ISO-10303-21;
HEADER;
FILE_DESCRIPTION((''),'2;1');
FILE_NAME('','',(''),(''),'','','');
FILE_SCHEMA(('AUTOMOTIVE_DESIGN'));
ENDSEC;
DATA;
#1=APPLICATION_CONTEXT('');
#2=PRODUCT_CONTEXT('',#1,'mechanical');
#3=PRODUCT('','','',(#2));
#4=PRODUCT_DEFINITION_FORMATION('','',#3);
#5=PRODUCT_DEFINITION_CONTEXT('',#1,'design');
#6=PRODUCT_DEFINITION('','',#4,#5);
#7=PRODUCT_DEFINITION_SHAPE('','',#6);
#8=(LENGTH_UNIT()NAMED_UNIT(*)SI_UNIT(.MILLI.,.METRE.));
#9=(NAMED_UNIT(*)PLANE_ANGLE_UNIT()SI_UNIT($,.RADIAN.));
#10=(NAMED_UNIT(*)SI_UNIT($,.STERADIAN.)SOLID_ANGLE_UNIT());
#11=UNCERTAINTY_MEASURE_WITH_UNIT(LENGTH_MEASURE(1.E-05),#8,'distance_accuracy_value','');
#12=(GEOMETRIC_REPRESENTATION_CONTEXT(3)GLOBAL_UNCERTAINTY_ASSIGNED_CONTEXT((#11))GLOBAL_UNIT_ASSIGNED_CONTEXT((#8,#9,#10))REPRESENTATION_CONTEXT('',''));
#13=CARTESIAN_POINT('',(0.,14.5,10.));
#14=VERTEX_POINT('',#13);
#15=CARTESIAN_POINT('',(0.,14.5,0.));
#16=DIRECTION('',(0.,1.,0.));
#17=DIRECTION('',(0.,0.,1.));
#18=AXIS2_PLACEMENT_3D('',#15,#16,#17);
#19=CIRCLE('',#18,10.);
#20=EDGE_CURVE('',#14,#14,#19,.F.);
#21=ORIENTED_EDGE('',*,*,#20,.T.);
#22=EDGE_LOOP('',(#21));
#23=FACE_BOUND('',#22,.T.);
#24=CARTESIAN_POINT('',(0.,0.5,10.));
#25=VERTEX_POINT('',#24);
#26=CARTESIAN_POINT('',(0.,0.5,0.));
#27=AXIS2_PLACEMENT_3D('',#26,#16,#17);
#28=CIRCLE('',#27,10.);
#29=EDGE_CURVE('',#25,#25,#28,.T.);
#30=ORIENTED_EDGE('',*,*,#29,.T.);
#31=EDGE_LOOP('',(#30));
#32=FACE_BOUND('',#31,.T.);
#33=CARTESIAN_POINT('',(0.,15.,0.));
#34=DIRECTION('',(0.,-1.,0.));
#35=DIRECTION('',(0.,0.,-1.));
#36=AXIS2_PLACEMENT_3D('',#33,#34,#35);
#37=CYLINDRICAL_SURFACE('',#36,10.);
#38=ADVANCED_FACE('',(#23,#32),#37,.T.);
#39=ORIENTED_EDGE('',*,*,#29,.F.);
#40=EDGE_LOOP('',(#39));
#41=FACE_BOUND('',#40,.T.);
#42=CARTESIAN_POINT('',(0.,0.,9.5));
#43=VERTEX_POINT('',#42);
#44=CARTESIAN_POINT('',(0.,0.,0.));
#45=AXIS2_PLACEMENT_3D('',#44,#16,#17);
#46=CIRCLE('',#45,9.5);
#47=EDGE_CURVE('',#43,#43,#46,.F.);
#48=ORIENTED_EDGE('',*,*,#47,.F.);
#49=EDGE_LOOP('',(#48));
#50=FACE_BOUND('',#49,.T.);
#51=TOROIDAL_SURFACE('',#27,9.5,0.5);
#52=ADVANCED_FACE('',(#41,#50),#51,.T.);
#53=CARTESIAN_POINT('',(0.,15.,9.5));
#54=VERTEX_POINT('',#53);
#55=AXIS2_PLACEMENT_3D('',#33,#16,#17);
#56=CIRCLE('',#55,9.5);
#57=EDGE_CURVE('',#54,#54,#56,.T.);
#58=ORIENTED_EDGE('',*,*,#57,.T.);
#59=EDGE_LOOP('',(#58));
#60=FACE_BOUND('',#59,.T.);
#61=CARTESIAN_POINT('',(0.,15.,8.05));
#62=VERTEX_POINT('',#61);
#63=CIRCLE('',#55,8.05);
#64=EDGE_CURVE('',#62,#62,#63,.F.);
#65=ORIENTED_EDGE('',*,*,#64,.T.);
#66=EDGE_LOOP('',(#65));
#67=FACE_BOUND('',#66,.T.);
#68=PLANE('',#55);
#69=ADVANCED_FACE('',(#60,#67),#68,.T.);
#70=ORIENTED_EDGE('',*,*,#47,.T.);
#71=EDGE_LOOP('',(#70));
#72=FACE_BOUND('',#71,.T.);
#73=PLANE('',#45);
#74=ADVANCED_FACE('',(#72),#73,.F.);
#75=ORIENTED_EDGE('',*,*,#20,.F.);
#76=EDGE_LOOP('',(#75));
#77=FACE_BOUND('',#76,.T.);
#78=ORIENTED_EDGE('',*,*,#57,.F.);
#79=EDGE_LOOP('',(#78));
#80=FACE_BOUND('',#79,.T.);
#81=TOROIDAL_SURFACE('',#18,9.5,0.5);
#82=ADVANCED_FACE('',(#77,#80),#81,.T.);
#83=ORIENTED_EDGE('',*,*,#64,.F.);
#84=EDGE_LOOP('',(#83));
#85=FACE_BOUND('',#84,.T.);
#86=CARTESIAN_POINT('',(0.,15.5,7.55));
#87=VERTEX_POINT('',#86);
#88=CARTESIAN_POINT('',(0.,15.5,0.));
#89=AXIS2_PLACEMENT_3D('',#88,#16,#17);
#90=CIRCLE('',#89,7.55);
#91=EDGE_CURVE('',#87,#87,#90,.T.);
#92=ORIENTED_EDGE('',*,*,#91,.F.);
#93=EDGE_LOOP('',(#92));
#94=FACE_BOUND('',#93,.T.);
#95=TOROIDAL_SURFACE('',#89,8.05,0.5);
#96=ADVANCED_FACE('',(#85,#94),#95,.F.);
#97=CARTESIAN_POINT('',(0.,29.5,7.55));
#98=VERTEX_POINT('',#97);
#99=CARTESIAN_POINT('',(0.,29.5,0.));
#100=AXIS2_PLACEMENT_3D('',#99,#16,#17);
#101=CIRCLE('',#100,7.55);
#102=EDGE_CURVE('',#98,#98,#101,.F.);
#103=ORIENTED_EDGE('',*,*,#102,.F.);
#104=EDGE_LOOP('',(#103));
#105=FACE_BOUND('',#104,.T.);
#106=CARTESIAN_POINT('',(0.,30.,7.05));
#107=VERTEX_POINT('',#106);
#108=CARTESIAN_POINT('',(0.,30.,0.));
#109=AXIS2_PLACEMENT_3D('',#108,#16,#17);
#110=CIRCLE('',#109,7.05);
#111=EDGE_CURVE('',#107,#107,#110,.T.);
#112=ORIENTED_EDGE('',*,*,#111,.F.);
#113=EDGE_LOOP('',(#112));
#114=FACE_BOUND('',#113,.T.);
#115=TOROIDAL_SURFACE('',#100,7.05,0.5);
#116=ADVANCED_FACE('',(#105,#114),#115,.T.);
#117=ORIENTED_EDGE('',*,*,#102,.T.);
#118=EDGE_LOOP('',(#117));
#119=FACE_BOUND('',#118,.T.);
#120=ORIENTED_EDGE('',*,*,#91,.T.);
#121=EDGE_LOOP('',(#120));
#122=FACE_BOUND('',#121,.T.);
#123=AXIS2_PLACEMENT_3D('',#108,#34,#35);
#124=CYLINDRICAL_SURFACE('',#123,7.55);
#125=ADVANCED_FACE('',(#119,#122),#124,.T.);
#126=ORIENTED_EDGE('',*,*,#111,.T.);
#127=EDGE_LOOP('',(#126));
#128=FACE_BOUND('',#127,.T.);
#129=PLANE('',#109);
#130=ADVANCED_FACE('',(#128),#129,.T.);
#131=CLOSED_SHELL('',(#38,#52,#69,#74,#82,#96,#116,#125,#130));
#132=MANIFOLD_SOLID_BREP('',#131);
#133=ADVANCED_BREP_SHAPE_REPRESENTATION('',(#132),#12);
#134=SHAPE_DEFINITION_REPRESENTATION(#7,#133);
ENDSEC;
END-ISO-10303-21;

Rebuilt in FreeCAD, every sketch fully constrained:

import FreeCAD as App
import Part
import Sketcher
from FreeCAD import Vector


def edges_at(feature, points):
    """Names of the edges that pass closest to the given points."""
    edges = feature.Shape.Edges
    near = lambda p: min(range(len(edges)), key=lambda i: edges[i].distToShape(Part.Vertex(*p))[0])
    return sorted({f"Edge{near(p) + 1}" for p in points})

doc = App.newDocument("Part")
body = doc.addObject("PartDesign::Body", "Body")

# Sketch on XZ plane
sketch1 = body.newObject("Sketcher::SketchObject", "Sketch")
sketch1.AttachmentSupport = (doc.getObject("XZ_Plane"), [""])
sketch1.MapMode = "FlatFace"
sketch1.addGeometry(Part.Circle(Vector(0, 0, 0), Vector(0, 0, 1), 10), False)
sketch1.addConstraint([
    Sketcher.Constraint("Coincident", 0, 3, -1, 1),
    Sketcher.Constraint("Diameter", 0, 20.0),
])
pad1 = body.newObject("PartDesign::Pad", "Pad")
pad1.Profile = sketch1
pad1.Length = 15
pad1.Reversed = True

# Sketch on XZ plane
sketch2 = body.newObject("Sketcher::SketchObject", "Sketch001")
sketch2.AttachmentSupport = (doc.getObject("XZ_Plane"), [""])
sketch2.MapMode = "FlatFace"
sketch2.AttachmentOffset = App.Placement(Vector(0, 0, -15), App.Rotation())
sketch2.addGeometry(Part.Circle(Vector(0, 0, 0), Vector(0, 0, 1), 8), False)
sketch2.addConstraint([
    Sketcher.Constraint("Coincident", 0, 3, -1, 1),
    Sketcher.Constraint("Diameter", 0, 15.1),
])
pad2 = body.newObject("PartDesign::Pad", "Pad001")
pad2.Profile = sketch2
pad2.Length = 15
pad2.Reversed = True
doc.recompute()

fillet = body.newObject("PartDesign::Fillet", "Fillet")
fillet.Base = (pad2, edges_at(pad2, [
    (0, 0, -10),
    (0, 15, -10),
    (0, 15, -7.55),
    (0, 30, -7.55),
]))
fillet.Radius = 0.5

doc.recompute()
